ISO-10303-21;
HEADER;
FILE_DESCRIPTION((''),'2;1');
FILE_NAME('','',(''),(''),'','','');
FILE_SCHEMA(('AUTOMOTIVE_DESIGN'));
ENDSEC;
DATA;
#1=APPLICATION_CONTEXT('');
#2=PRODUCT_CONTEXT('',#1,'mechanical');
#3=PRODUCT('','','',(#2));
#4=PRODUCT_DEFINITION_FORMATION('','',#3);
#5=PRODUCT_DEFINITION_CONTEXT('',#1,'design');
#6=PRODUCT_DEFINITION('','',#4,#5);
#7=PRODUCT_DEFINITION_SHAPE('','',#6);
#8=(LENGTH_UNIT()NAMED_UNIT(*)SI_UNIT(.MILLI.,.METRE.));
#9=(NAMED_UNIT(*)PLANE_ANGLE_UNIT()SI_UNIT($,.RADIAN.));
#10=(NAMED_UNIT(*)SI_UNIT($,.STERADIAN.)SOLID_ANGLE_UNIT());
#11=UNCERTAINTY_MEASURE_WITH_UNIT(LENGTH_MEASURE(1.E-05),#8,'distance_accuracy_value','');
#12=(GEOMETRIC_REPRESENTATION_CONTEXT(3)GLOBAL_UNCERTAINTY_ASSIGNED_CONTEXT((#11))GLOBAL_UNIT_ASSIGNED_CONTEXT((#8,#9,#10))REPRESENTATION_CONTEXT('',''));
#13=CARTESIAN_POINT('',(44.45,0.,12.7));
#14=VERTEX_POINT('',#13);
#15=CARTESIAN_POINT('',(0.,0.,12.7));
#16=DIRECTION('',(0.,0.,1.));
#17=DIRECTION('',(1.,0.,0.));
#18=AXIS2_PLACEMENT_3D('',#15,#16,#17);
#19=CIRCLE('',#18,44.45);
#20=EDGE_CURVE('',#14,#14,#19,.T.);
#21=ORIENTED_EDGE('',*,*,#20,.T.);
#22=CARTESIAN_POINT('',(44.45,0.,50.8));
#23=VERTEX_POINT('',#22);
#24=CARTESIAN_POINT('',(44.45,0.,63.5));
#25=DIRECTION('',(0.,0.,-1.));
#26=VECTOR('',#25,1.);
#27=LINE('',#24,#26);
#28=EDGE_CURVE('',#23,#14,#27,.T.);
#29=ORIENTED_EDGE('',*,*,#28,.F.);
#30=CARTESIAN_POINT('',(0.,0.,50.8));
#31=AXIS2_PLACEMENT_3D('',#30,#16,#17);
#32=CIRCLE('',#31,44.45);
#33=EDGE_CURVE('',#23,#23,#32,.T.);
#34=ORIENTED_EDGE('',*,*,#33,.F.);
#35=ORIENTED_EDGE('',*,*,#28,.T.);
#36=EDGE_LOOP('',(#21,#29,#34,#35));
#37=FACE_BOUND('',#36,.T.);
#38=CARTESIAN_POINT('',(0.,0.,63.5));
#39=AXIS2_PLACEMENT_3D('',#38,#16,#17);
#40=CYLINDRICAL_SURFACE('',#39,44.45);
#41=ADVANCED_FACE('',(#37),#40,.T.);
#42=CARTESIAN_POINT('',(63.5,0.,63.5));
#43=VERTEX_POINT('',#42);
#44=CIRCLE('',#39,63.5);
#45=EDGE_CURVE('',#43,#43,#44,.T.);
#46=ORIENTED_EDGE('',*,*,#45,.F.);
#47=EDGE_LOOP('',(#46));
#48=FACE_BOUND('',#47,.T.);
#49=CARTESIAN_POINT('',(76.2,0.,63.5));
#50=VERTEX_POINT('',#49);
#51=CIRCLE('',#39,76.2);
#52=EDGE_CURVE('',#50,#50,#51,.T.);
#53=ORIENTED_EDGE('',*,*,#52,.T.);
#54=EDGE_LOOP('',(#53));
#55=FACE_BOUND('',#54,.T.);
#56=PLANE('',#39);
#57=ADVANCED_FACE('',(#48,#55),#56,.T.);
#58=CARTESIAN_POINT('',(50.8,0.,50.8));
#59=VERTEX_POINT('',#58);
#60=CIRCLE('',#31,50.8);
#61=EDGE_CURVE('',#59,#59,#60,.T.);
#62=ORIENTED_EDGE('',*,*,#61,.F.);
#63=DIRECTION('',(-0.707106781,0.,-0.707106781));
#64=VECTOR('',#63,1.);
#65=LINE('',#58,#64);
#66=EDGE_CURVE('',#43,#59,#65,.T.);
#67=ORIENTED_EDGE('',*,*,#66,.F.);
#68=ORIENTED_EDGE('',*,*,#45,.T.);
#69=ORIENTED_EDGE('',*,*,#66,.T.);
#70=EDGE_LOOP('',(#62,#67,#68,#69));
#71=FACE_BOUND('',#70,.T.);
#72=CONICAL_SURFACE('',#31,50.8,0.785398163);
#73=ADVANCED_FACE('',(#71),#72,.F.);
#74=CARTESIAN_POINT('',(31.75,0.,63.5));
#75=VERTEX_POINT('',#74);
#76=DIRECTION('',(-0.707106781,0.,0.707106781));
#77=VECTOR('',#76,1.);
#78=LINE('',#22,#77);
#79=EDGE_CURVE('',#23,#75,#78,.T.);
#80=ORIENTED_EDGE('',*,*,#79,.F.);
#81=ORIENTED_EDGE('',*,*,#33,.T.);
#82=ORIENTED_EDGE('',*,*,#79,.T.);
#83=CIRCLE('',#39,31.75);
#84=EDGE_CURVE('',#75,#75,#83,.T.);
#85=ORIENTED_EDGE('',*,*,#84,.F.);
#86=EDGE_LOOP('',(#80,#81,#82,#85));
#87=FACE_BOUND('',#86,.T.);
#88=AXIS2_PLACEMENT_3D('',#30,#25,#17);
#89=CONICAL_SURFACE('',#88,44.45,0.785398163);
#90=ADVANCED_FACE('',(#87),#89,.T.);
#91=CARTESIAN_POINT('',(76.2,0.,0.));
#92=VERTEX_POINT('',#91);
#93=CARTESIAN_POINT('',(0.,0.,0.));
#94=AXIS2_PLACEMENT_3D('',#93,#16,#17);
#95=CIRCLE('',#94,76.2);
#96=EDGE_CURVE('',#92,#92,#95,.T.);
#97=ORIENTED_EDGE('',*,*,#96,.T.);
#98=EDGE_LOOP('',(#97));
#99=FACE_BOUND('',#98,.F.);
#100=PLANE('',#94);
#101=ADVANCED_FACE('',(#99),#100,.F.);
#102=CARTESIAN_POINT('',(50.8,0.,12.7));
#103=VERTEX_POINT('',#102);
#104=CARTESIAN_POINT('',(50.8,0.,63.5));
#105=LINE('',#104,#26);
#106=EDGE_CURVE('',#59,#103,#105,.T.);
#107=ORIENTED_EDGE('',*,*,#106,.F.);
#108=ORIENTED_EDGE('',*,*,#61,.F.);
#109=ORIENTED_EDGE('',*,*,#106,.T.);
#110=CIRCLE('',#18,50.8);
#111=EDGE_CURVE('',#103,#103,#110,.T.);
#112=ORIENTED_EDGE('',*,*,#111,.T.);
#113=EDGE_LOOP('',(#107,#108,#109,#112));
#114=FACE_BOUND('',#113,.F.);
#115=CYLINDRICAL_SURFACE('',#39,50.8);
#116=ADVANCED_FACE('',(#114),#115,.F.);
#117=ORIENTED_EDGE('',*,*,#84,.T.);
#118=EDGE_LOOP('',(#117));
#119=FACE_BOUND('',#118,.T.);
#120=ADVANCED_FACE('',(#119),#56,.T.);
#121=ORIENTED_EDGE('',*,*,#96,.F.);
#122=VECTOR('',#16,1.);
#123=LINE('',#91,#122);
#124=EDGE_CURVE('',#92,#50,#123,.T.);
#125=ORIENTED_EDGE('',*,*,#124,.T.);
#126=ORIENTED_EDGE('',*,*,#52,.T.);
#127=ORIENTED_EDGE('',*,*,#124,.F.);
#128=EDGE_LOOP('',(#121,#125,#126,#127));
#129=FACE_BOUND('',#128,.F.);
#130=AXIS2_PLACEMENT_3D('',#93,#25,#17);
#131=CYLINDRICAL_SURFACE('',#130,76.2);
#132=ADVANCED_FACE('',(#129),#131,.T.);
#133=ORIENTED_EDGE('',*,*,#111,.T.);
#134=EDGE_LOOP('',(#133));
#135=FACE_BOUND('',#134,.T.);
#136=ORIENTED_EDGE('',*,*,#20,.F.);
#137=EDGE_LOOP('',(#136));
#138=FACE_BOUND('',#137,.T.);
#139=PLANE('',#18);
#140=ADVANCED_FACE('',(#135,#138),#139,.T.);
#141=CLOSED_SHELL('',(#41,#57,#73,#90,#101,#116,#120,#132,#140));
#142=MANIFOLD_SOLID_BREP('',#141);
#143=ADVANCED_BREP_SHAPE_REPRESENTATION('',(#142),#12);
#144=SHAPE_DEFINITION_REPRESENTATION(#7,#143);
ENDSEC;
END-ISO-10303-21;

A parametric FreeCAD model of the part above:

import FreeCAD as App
import Part
import Sketcher

V = App.Vector
Q = App.Units.Quantity


def edges_at(feature, points):
    """Names of the edges that pass closest to the given points."""
    edges = feature.Shape.Edges
    near = lambda p: min(range(len(edges)), key=lambda i: edges[i].distToShape(Part.Vertex(*p))[0])
    return sorted({f"Edge{near(p) + 1}" for p in points})

doc = App.newDocument("Part")
body = doc.addObject("PartDesign::Body", "Body")

# Sketch on XY plane
sketch1 = body.newObject("Sketcher::SketchObject", "Sketch")
sketch1.AttachmentSupport = (doc.getObject("XY_Plane"), [""])
sketch1.MapMode = "FlatFace"
sketch1.addGeometry(Part.Circle(V(0, 0, 0), V(0, 0, 1), 76), False)
sketch1.addConstraint([
    Sketcher.Constraint("Coincident", 0, 3, -1, 1),
    Sketcher.Constraint("Diameter", 0, Q("6 in")),
])
pad1 = body.newObject("PartDesign::Pad", "Pad")
pad1.Profile = sketch1
pad1.Length = Q("2.5 in")

# Sketch on XY plane
sketch2 = body.newObject("Sketcher::SketchObject", "Sketch001")
sketch2.AttachmentSupport = (doc.getObject("XY_Plane"), [""])
sketch2.MapMode = "FlatFace"
sketch2.AttachmentOffset = App.Placement(V(0, 0, 2.5 * 25.4), App.Rotation())
sketch2.addGeometry([
    Part.Circle(V(0, 0, 0), V(0, 0, 1), 51),
    Part.Circle(V(0, 0, 0), V(0, 0, 1), 44),
], False)
sketch2.addConstraint([
    Sketcher.Constraint("Coincident", 0, 3, -1, 1),
    Sketcher.Constraint("Coincident", 1, 3, -1, 1),
    Sketcher.Constraint("Diameter", 0, Q("4 in")),
    Sketcher.Constraint("Diameter", 1, Q("3.5 in")),
])
pocket1 = body.newObject("PartDesign::Pocket", "Pocket")
pocket1.Profile = sketch2
pocket1.Length = Q("2 in")
doc.recompute()

chamfer = body.newObject("PartDesign::Chamfer", "Chamfer")
chamfer.Base = (pocket1, edges_at(pocket1, [(-50.8, 0, 63.5), (-44.45, 0, 63.5)]))
chamfer.Size = Q("0.5 in")

doc.recompute()
